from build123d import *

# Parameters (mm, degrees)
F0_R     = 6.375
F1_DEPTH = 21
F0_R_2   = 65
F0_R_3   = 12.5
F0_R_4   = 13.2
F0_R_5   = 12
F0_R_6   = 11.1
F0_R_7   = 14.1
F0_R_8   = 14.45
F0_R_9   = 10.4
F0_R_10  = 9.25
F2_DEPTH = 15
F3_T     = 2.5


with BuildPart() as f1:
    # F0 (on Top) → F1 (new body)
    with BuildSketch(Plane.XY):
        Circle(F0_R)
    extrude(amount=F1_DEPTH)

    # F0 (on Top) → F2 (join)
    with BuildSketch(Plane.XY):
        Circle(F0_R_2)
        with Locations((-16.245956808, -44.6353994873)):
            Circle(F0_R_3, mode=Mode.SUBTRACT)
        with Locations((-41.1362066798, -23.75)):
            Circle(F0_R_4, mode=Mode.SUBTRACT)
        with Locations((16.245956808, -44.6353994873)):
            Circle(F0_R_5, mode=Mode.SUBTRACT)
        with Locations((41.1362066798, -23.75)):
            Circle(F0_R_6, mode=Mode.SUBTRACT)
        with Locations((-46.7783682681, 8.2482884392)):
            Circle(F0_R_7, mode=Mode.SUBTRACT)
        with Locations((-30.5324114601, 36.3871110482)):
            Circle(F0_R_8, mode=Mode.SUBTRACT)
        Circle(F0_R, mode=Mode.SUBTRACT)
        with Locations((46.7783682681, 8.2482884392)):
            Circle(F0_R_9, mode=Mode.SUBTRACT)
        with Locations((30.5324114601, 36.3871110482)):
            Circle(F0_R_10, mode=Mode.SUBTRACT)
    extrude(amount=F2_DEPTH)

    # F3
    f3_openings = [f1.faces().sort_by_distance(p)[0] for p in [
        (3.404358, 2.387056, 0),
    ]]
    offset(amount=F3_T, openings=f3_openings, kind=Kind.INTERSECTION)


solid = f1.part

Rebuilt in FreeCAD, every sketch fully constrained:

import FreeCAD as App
import Part
import Sketcher
Q = App.Units.Quantity


def faces_at(feature, points):
    """Names of the faces that lie closest to the given points."""
    faces = feature.Shape.Faces
    near = lambda p: min(range(len(faces)), key=lambda i: faces[i].distToShape(Part.Vertex(*p))[0])
    return sorted({f"Face{near(p) + 1}" for p in points})

doc = App.newDocument("Part")
body = doc.addObject("PartDesign::Body", "Body")

sketch1 = body.newObject("Sketcher::SketchObject", "Sketch")
sketch1.AttachmentSupport = (doc.getObject("XY_Plane"), [""])
sketch1.MapMode = "FlatFace"
sketch1.addGeometry(Part.Circle(App.Vector(0, 0, 0), App.Vector(0, 0, 1), 6.375), False)
sketch1.addConstraint(Sketcher.Constraint("Coincident", 0, 3, -1, 1))
sketch1.addConstraint(Sketcher.Constraint("Diameter", 0, Q("12.75 mm")))
pad1 = body.newObject("PartDesign::Pad", "Pad")
pad1.Profile = sketch1
pad1.Length = 21

sketch2 = body.newObject("Sketcher::SketchObject", "Sketch001")
sketch2.AttachmentSupport = (doc.getObject("XY_Plane"), [""])
sketch2.MapMode = "FlatFace"
sketch2.addGeometry(Part.Circle(App.Vector(0, 0, 0), App.Vector(0, 0, 1), 65), False)
sketch2.addGeometry(Part.Circle(App.Vector(-16.245957, -44.635399, 0), App.Vector(0, 0, 1), 12.5), False)
sketch2.addGeometry(Part.Circle(App.Vector(-41.136207, -23.75, 0), App.Vector(0, 0, 1), 13.2), False)
sketch2.addGeometry(Part.Circle(App.Vector(16.245957, -44.635399, 0), App.Vector(0, 0, 1), 12), False)
sketch2.addGeometry(Part.Circle(App.Vector(41.136207, -23.75, 0), App.Vector(0, 0, 1), 11.1), False)
sketch2.addGeometry(Part.Circle(App.Vector(-46.778368, 8.248288, 0), App.Vector(0, 0, 1), 14.1), False)
sketch2.addGeometry(Part.Circle(App.Vector(-30.532411, 36.387111, 0), App.Vector(0, 0, 1), 14.45), False)
sketch2.addGeometry(Part.Circle(App.Vector(0, 0, 0), App.Vector(0, 0, 1), 6.375), False)
sketch2.addGeometry(Part.Circle(App.Vector(46.778368, 8.248288, 0), App.Vector(0, 0, 1), 10.4), False)
sketch2.addGeometry(Part.Circle(App.Vector(30.532411, 36.387111, 0), App.Vector(0, 0, 1), 9.25), False)
sketch2.addConstraint(Sketcher.Constraint("Coincident", 0, 3, -1, 1))
sketch2.addConstraint(Sketcher.Constraint("Coincident", 7, 3, -1, 1))
sketch2.addConstraint(Sketcher.Constraint("Symmetric", 1, 3, 3, 3, -2))
sketch2.addConstraint(Sketcher.Constraint("Symmetric", 2, 3, 4, 3, -2))
sketch2.addConstraint(Sketcher.Constraint("Symmetric", 5, 3, 8, 3, -2))
sketch2.addConstraint(Sketcher.Constraint("Symmetric", 6, 3, 9, 3, -2))
sketch2.addConstraint(Sketcher.Constraint("Diameter", 0, Q("130 mm")))
sketch2.addConstraint(Sketcher.Constraint("Diameter", 1, Q("25 mm")))
sketch2.addConstraint(Sketcher.Constraint("Diameter", 3, Q("24 mm")))
sketch2.addConstraint(Sketcher.Constraint("Diameter", 2, Q("26.4 mm")))
sketch2.addConstraint(Sketcher.Constraint("Diameter", 4, Q("22.2 mm")))
sketch2.addConstraint(Sketcher.Constraint("Diameter", 5, Q("28.2 mm")))
sketch2.addConstraint(Sketcher.Constraint("Diameter", 6, Q("28.9 mm")))
sketch2.addConstraint(Sketcher.Constraint("Diameter", 8, Q("20.8 mm")))
sketch2.addConstraint(Sketcher.Constraint("Diameter", 9, Q("18.5 mm")))
sketch2.addConstraint(Sketcher.Constraint("Diameter", 7, Q("12.75 mm")))
sketch2.addConstraint(Sketcher.Constraint("DistanceY", 2, 3, -1, 1, Q("23.75 mm")))
sketch2.addConstraint(Sketcher.Constraint("DistanceY", 1, 3, -1, 1, Q("44.635399 mm")))
sketch2.addConstraint(Sketcher.Constraint("DistanceX", 5, 3, -1, 1, Q("46.778368 mm")))
sketch2.addConstraint(Sketcher.Constraint("DistanceY", -1, 1, 5, 3, Q("8.248288 mm")))
sketch2.addConstraint(Sketcher.Constraint("DistanceX", 6, 3, -1, 1, Q("30.532411 mm")))
sketch2.addConstraint(Sketcher.Constraint("DistanceY", -1, 1, 6, 3, Q("36.387111 mm")))
sketch2.addConstraint(Sketcher.Constraint("DistanceX", 2, 3, 1, 3, Q("24.89025 mm")))
sketch2.addConstraint(Sketcher.Constraint("DistanceX", 5, 3, 2, 3, Q("5.642162 mm")))
pad2 = body.newObject("PartDesign::Pad", "Pad001")
pad2.Profile = sketch2
pad2.Length = 15
doc.recompute()

thickness = body.newObject("PartDesign::Thickness", "Thickness")
thickness.Base = (pad2, faces_at(pad2, [(0, 0, 0)]))
thickness.Value = 2.5
thickness.Reversed = False
thickness.Join = "Intersection"

doc.recompute()
